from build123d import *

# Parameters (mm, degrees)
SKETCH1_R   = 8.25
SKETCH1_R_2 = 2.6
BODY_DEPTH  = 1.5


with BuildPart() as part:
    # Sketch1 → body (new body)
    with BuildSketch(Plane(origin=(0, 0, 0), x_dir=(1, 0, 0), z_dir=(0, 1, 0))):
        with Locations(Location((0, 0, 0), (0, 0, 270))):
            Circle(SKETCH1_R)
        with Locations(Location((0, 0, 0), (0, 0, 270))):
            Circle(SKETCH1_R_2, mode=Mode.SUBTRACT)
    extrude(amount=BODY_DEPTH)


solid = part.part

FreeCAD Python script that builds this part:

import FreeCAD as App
import Part
import Sketcher

doc = App.newDocument("Part")
body = doc.addObject("PartDesign::Body", "Body")

# Sketch on XZ plane
sketch1 = body.newObject("Sketcher::SketchObject", "Sketch")
sketch1.AttachmentSupport = (doc.getObject("XZ_Plane"), [""])
sketch1.MapMode = "FlatFace"
sketch1.addGeometry([
    Part.Circle(App.Vector(0, 0, 0), App.Vector(0, 0, 1), 8.2),
    Part.Circle(App.Vector(0, 0, 0), App.Vector(0, 0, 1), 2.6),
], False)
sketch1.addConstraint([
    Sketcher.Constraint("Coincident", 0, 3, -1, 1),
    Sketcher.Constraint("Coincident", 1, 3, -1, 1),
    Sketcher.Constraint("Diameter", 0, 16.5),
    Sketcher.Constraint("Diameter", 1, 5.2),
])
pad1 = body.newObject("PartDesign::Pad", "Pad")
pad1.Profile = sketch1
pad1.Length = 1.5
pad1.Reversed = True

doc.recompute()
